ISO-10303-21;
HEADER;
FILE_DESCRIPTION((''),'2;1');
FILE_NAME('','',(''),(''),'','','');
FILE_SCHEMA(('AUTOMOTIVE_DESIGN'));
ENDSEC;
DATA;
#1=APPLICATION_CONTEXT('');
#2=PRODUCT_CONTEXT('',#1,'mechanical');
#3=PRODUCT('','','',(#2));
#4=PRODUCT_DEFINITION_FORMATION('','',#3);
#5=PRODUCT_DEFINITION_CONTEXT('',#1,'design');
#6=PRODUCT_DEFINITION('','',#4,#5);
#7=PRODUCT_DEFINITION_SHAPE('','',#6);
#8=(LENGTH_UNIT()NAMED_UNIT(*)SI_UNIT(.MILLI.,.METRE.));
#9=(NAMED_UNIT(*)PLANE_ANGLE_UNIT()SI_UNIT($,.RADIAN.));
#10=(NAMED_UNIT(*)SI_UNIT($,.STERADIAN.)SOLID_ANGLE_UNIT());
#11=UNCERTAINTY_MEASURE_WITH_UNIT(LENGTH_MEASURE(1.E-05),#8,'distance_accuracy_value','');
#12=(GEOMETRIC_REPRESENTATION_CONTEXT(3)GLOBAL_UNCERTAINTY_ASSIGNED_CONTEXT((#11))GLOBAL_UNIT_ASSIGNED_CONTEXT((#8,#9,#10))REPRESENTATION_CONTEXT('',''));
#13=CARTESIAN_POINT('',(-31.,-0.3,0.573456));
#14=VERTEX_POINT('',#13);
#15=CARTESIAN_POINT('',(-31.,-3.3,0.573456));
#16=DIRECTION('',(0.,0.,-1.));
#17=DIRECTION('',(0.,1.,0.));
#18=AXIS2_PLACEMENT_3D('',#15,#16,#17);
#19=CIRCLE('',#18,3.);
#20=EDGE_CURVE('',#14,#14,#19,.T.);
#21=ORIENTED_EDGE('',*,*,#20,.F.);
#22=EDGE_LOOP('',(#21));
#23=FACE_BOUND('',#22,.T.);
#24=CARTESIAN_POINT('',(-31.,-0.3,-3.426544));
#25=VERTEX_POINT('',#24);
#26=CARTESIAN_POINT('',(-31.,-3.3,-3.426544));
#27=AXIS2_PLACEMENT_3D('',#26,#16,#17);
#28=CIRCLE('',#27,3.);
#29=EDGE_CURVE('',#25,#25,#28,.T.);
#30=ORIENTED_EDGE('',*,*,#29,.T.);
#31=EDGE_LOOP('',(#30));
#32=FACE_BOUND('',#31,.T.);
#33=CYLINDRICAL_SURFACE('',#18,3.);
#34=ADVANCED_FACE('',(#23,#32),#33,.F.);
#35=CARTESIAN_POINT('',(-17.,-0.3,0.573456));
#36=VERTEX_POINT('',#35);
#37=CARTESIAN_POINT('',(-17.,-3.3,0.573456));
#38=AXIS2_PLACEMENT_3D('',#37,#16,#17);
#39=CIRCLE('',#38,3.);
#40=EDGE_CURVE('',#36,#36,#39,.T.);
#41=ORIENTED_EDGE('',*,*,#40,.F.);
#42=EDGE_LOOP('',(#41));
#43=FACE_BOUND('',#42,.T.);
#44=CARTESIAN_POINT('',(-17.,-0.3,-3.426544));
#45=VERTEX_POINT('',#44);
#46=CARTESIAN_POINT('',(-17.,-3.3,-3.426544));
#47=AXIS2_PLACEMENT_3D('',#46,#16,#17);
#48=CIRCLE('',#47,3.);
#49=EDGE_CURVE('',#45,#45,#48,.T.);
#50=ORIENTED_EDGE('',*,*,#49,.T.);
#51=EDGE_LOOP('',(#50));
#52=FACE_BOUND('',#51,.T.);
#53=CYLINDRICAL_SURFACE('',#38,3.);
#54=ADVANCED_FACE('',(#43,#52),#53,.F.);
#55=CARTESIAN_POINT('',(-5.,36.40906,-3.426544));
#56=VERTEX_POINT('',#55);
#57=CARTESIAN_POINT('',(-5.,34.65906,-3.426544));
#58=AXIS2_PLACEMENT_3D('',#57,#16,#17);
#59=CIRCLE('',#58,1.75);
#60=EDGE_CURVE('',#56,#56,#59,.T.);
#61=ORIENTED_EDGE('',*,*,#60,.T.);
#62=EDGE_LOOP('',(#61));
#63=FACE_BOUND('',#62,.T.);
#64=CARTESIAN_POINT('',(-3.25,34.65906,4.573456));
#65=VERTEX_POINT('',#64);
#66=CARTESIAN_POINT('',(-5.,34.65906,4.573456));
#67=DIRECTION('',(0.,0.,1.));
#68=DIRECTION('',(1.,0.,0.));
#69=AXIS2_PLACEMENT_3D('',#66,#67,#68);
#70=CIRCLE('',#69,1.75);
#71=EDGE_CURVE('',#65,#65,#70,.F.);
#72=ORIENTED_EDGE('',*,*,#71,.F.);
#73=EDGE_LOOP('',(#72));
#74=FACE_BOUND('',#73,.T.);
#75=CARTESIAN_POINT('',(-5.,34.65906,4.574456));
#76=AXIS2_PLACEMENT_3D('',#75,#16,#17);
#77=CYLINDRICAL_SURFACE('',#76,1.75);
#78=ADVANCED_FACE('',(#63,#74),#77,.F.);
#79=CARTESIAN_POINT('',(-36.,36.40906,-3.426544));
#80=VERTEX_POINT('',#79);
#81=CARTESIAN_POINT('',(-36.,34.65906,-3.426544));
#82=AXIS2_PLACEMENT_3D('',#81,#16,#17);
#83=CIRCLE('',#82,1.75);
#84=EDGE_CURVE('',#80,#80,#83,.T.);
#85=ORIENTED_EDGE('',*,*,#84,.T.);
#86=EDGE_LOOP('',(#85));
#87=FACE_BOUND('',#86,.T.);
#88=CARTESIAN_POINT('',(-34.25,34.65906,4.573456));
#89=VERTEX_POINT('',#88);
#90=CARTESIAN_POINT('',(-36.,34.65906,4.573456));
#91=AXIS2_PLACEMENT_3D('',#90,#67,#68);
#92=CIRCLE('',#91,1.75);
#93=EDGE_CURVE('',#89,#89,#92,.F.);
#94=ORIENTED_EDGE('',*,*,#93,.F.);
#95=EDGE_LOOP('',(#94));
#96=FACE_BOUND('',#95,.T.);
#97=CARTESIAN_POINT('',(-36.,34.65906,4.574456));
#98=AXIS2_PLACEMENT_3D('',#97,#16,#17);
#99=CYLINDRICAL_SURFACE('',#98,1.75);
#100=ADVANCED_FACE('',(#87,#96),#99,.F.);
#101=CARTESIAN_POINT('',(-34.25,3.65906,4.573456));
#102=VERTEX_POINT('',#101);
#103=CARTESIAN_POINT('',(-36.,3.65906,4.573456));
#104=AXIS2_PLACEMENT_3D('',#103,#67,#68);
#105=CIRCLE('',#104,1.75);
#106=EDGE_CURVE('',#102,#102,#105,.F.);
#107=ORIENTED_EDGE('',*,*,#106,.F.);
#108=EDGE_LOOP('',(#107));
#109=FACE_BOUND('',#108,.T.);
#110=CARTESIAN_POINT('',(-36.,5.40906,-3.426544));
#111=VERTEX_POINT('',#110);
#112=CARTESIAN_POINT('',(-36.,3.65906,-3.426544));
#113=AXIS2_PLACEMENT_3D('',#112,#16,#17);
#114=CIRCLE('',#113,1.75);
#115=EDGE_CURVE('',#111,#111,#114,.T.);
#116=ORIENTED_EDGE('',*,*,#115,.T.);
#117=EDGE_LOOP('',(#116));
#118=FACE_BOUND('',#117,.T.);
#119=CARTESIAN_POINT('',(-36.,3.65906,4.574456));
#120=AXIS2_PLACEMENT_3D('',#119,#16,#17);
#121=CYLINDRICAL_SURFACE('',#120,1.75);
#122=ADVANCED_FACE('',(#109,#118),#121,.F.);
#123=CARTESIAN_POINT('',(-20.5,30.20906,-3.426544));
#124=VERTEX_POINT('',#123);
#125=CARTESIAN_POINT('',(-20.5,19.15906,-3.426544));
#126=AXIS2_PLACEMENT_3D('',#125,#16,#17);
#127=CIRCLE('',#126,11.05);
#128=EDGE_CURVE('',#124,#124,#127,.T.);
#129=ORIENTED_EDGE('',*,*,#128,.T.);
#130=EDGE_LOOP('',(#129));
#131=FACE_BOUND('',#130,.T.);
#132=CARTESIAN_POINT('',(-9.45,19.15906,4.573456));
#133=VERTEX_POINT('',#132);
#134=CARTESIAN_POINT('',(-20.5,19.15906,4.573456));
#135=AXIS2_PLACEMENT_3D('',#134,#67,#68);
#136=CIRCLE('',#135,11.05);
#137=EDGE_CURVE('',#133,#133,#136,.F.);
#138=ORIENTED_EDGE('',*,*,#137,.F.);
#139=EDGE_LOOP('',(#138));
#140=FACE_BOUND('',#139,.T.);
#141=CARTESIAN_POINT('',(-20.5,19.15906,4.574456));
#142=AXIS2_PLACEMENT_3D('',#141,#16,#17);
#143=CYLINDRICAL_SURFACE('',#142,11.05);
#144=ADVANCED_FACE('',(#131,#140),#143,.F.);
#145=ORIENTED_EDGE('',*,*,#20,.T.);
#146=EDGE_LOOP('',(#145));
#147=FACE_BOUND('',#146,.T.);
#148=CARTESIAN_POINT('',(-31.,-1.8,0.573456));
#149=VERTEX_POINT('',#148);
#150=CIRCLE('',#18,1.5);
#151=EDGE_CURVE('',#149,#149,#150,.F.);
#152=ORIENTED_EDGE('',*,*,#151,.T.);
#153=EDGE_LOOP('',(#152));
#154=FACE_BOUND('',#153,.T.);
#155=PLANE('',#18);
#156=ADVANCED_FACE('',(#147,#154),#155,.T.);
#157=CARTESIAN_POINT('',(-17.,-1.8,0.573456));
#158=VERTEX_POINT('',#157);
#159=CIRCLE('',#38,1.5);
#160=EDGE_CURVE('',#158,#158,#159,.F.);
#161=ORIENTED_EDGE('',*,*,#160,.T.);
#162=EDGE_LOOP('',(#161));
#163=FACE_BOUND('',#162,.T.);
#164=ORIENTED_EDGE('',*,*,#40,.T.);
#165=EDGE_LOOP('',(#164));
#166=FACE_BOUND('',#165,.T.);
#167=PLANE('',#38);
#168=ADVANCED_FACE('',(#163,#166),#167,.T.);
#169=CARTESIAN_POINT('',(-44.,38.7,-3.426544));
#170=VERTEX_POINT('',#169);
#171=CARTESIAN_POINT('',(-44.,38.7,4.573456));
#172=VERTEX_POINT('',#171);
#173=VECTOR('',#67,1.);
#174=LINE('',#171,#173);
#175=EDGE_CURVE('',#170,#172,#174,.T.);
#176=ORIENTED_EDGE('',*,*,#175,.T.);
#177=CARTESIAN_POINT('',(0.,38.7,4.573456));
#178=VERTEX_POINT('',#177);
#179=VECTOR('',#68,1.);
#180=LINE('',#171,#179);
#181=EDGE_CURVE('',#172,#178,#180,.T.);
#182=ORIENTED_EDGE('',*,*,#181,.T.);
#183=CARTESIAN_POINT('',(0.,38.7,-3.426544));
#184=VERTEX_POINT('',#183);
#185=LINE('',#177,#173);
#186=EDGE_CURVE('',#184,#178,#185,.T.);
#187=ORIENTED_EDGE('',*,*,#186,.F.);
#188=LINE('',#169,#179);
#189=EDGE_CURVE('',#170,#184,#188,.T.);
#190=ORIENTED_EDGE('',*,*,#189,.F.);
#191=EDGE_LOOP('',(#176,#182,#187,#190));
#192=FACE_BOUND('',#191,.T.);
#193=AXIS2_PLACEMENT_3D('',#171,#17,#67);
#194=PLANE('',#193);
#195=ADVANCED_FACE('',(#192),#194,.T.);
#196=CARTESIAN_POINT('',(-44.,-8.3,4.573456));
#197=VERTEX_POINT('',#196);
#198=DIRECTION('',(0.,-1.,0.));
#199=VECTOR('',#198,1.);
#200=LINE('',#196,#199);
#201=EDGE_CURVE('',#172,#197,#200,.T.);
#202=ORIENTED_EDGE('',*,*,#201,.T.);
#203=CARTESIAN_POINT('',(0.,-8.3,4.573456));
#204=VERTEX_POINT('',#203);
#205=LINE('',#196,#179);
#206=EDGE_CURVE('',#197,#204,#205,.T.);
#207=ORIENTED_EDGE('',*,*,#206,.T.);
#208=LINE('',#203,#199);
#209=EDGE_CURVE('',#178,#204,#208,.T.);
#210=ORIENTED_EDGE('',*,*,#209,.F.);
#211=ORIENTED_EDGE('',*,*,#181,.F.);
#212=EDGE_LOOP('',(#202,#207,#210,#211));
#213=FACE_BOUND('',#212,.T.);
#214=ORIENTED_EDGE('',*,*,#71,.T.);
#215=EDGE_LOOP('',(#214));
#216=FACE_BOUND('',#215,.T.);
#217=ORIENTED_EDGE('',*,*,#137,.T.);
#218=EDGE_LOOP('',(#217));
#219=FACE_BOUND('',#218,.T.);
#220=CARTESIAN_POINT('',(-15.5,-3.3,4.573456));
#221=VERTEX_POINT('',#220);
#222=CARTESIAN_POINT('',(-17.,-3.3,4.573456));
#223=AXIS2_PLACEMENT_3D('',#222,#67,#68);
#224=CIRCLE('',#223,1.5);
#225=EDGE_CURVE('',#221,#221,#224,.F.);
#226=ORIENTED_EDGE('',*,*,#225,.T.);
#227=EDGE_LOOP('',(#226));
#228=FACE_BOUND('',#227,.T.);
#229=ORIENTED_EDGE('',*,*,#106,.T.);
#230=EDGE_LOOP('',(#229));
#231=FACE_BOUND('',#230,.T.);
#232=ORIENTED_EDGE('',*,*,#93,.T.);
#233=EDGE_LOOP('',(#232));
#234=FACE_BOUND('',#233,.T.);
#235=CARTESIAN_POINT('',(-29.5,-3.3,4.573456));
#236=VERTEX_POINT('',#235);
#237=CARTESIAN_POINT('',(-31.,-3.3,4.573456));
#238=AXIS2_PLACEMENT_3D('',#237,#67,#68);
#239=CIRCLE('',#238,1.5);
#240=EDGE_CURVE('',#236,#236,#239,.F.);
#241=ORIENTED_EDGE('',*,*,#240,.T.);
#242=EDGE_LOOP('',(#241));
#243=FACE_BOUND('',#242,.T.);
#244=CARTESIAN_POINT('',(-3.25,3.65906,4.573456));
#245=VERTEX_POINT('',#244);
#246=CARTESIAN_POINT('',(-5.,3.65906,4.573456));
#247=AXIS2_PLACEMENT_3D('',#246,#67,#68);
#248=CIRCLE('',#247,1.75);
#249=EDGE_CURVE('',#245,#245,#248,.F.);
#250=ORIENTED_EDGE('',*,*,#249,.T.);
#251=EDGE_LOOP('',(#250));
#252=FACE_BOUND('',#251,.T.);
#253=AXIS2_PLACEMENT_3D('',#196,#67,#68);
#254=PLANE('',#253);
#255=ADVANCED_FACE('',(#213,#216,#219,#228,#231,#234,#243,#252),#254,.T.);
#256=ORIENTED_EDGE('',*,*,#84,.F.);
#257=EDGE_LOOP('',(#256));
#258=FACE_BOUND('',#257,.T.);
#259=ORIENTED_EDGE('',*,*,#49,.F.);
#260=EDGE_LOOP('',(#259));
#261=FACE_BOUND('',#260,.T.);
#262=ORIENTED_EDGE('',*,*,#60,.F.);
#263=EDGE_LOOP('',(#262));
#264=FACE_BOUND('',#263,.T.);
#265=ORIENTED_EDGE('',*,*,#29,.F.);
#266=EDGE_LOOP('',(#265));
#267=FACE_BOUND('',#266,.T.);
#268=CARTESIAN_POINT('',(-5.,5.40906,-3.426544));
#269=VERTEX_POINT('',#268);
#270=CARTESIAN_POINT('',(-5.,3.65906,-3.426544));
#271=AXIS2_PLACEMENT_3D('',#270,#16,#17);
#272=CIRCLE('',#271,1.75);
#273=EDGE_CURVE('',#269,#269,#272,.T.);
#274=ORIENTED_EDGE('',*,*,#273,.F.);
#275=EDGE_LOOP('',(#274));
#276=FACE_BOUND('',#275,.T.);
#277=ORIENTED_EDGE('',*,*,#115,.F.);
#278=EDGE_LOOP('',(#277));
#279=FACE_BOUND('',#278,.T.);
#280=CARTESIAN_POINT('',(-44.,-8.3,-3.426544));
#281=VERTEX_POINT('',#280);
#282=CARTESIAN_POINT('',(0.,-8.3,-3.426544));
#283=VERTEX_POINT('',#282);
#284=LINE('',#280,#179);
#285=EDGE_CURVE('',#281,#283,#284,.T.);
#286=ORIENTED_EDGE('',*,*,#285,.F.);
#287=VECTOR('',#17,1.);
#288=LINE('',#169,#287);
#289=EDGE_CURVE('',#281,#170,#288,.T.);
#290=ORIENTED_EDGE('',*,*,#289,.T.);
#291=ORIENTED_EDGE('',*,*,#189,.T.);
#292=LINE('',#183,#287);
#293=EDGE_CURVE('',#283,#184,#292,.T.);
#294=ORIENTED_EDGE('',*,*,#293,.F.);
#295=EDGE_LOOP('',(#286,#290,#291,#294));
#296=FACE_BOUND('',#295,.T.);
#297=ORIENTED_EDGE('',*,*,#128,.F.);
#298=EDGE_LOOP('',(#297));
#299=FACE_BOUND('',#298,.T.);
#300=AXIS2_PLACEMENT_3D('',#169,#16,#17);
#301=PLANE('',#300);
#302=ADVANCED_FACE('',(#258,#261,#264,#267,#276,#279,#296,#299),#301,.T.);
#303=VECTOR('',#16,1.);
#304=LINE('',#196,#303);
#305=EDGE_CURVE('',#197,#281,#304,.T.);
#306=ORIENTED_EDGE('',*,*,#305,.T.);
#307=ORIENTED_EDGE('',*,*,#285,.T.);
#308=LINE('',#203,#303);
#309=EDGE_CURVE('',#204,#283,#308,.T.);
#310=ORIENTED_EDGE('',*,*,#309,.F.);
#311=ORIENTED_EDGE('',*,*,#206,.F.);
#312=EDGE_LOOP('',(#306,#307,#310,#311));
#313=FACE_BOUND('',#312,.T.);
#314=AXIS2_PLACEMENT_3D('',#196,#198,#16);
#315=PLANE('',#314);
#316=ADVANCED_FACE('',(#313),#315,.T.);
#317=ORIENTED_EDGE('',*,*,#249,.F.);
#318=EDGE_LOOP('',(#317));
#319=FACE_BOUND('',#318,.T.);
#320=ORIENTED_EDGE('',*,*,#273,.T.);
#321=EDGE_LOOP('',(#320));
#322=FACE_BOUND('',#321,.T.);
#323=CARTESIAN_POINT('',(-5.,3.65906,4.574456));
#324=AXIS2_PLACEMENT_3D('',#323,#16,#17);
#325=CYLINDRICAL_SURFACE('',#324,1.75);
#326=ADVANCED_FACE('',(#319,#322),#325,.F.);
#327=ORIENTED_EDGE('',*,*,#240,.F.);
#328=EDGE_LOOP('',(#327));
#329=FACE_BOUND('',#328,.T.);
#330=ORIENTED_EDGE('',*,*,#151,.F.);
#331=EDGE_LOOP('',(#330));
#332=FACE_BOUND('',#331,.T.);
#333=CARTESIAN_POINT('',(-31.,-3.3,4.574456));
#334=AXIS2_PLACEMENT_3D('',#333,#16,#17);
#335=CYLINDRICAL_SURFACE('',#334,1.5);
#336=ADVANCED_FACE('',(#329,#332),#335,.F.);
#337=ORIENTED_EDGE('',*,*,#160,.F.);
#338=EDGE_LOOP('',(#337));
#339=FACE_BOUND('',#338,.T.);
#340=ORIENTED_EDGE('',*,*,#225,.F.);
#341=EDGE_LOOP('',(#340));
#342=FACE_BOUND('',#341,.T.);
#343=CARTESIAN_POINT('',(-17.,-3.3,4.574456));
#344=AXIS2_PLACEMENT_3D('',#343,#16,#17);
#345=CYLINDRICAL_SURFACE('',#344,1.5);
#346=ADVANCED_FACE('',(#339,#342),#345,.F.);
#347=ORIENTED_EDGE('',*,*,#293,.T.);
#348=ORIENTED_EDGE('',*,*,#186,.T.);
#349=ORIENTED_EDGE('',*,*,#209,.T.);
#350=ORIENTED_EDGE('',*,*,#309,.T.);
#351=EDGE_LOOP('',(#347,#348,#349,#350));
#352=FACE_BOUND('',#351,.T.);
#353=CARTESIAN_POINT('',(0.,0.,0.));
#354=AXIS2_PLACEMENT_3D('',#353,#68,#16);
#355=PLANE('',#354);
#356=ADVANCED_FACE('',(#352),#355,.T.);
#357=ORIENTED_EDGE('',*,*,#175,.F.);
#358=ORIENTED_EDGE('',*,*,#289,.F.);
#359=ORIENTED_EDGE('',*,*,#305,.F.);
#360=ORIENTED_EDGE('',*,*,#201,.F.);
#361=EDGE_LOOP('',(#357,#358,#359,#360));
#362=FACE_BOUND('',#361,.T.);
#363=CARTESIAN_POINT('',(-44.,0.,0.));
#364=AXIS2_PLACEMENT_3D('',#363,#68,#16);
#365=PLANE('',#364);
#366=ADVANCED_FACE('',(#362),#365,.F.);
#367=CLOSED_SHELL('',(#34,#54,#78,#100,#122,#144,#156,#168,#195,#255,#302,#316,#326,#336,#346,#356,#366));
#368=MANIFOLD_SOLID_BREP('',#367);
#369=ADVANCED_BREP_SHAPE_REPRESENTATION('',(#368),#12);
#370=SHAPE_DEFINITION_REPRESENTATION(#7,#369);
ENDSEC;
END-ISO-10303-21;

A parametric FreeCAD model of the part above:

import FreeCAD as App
import Part
import Sketcher
from FreeCAD import Vector
Q = App.Units.Quantity

doc = App.newDocument("Part")
body = doc.addObject("PartDesign::Body", "Body")

# Sketch on YZ plane
sketch1 = body.newObject("Sketcher::SketchObject", "Sketch")
sketch1.AttachmentSupport = (doc.getObject("YZ_Plane"), [""])
sketch1.MapMode = "FlatFace"
sketch1.addGeometry(Part.LineSegment(Vector(39, 5, 0), Vector(-8, 5, 0)), False)
sketch1.addGeometry(Part.LineSegment(Vector(-8, 5, 0), Vector(-8, -3, 0)), False)
sketch1.addGeometry(Part.LineSegment(Vector(-8, -3, 0), Vector(39, -3, 0)), False)
sketch1.addGeometry(Part.LineSegment(Vector(39, -3, 0), Vector(39, 5, 0)), False)
sketch1.addConstraint(Sketcher.Constraint("Coincident", 0, 2, 1, 1))
sketch1.addConstraint(Sketcher.Constraint("Coincident", 1, 2, 2, 1))
sketch1.addConstraint(Sketcher.Constraint("Coincident", 2, 2, 3, 1))
sketch1.addConstraint(Sketcher.Constraint("Coincident", 3, 2, 0, 1))
sketch1.addConstraint(Sketcher.Constraint("Horizontal", 0))
sketch1.addConstraint(Sketcher.Constraint("Vertical", 1))
sketch1.addConstraint(Sketcher.Constraint("Horizontal", 2))
sketch1.addConstraint(Sketcher.Constraint("Vertical", 3))
sketch1.addConstraint(Sketcher.Constraint("DistanceX", 0, 2, 0, 1, Q("47 mm")))
sketch1.addConstraint(Sketcher.Constraint("DistanceY", 1, 2, 1, 1, Q("8 mm")))
sketch1.addConstraint(Sketcher.Constraint("DistanceX", 0, 2, -1, 1, Q("8.3 mm")))
sketch1.addConstraint(Sketcher.Constraint("DistanceY", -1, 1, 0, 2, Q("4.573456 mm")))
pad1 = body.newObject("PartDesign::Pad", "Pad")
pad1.Profile = sketch1
pad1.Length = 44
pad1.Reversed = True

# Sketch on XY plane
sketch2 = body.newObject("Sketcher::SketchObject", "Sketch001")
sketch2.AttachmentSupport = (doc.getObject("XY_Plane"), [""])
sketch2.MapMode = "FlatFace"
sketch2.AttachmentOffset = App.Placement(Vector(0, 0, -3.426544), App.Rotation())
sketch2.addGeometry(Part.Circle(Vector(-20, 19, 0), Vector(0, 0, 1), 11), False)
sketch2.addConstraint(Sketcher.Constraint("Diameter", 0, Q("22.1 mm")))
sketch2.addConstraint(Sketcher.Constraint("DistanceX", 0, 3, -1, 1, Q("20.5 mm")))
sketch2.addConstraint(Sketcher.Constraint("DistanceY", -1, 1, 0, 3, Q("19.15906 mm")))
pocket1 = body.newObject("PartDesign::Pocket", "Pocket")
pocket1.Profile = sketch2
pocket1.Type = "UpToFirst"
pocket1.Reversed = True

# Sketch on XY plane
sketch3 = body.newObject("Sketcher::SketchObject", "Sketch002")
sketch3.AttachmentSupport = (doc.getObject("XY_Plane"), [""])
sketch3.MapMode = "FlatFace"
sketch3.AttachmentOffset = App.Placement(Vector(0, 0, -3.426544), App.Rotation())
sketch3.addGeometry(Part.Circle(Vector(-5, 34.7, 0), Vector(0, 0, 1), 1.8), False)
sketch3.addConstraint(Sketcher.Constraint("Diameter", 0, Q("3.5 mm")))
sketch3.addConstraint(Sketcher.Constraint("DistanceX", 0, 3, -1, 1, Q("5 mm")))
sketch3.addConstraint(Sketcher.Constraint("DistanceY", -1, 1, 0, 3, Q("34.65906 mm")))
pocket2 = body.newObject("PartDesign::Pocket", "Pocket001")
pocket2.Profile = sketch3
pocket2.Type = "UpToFirst"
pocket2.Reversed = True

# Sketch on XY plane
sketch4 = body.newObject("Sketcher::SketchObject", "Sketch003")
sketch4.AttachmentSupport = (doc.getObject("XY_Plane"), [""])
sketch4.MapMode = "FlatFace"
sketch4.AttachmentOffset = App.Placement(Vector(0, 0, -3.426544), App.Rotation())
sketch4.addGeometry(Part.Circle(Vector(-5, 3.7, 0), Vector(0, 0, 1), 1.8), False)
sketch4.addConstraint(Sketcher.Constraint("Diameter", 0, Q("3.5 mm")))
sketch4.addConstraint(Sketcher.Constraint("DistanceX", 0, 3, -1, 1, Q("5 mm")))
sketch4.addConstraint(Sketcher.Constraint("DistanceY", -1, 1, 0, 3, Q("3.65906 mm")))
pocket3 = body.newObject("PartDesign::Pocket", "Pocket002")
pocket3.Profile = sketch4
pocket3.Type = "UpToFirst"
pocket3.Reversed = True

# Sketch on XY plane
sketch5 = body.newObject("Sketcher::SketchObject", "Sketch004")
sketch5.AttachmentSupport = (doc.getObject("XY_Plane"), [""])
sketch5.MapMode = "FlatFace"
sketch5.AttachmentOffset = App.Placement(Vector(0, 0, -3.426544), App.Rotation())
sketch5.addGeometry(Part.Circle(Vector(-36, 3.7, 0), Vector(0, 0, 1), 1.8), False)
sketch5.addConstraint(Sketcher.Constraint("Diameter", 0, Q("3.5 mm")))
sketch5.addConstraint(Sketcher.Constraint("DistanceX", 0, 3, -1, 1, Q("36 mm")))
sketch5.addConstraint(Sketcher.Constraint("DistanceY", -1, 1, 0, 3, Q("3.65906 mm")))
pocket4 = body.newObject("PartDesign::Pocket", "Pocket003")
pocket4.Profile = sketch5
pocket4.Type = "UpToFirst"
pocket4.Reversed = True

# Sketch on XY plane
sketch6 = body.newObject("Sketcher::SketchObject", "Sketch005")
sketch6.AttachmentSupport = (doc.getObject("XY_Plane"), [""])
sketch6.MapMode = "FlatFace"
sketch6.AttachmentOffset = App.Placement(Vector(0, 0, -3.426544), App.Rotation())
sketch6.addGeometry(Part.Circle(Vector(-36, 34.7, 0), Vector(0, 0, 1), 1.8), False)
sketch6.addConstraint(Sketcher.Constraint("Diameter", 0, Q("3.5 mm")))
sketch6.addConstraint(Sketcher.Constraint("DistanceX", 0, 3, -1, 1, Q("36 mm")))
sketch6.addConstraint(Sketcher.Constraint("DistanceY", -1, 1, 0, 3, Q("34.65906 mm")))
pocket5 = body.newObject("PartDesign::Pocket", "Pocket004")
pocket5.Profile = sketch6
pocket5.Type = "UpToFirst"
pocket5.Reversed = True

# Sketch on XY plane
sketch7 = body.newObject("Sketcher::SketchObject", "Sketch006")
sketch7.AttachmentSupport = (doc.getObject("XY_Plane"), [""])
sketch7.MapMode = "FlatFace"
sketch7.AttachmentOffset = App.Placement(Vector(0, 0, -3.426544), App.Rotation())
sketch7.addGeometry(Part.Circle(Vector(-17, -3.3, 0), Vector(0, 0, 1), 1.5), False)
sketch7.addConstraint(Sketcher.Constraint("Diameter", 0, Q("3 mm")))
sketch7.addConstraint(Sketcher.Constraint("DistanceX", 0, 3, -1, 1, Q("17 mm")))
sketch7.addConstraint(Sketcher.Constraint("DistanceY", 0, 3, -1, 1, Q("3.3 mm")))
pocket6 = body.newObject("PartDesign::Pocket", "Pocket005")
pocket6.Profile = sketch7
pocket6.Type = "UpToFirst"
pocket6.Reversed = True

# Sketch on XY plane
sketch8 = body.newObject("Sketcher::SketchObject", "Sketch007")
sketch8.AttachmentSupport = (doc.getObject("XY_Plane"), [""])
sketch8.MapMode = "FlatFace"
sketch8.AttachmentOffset = App.Placement(Vector(0, 0, -3.426544), App.Rotation())
sketch8.addGeometry(Part.Circle(Vector(-31, -3.3, 0), Vector(0, 0, 1), 1.5), False)
sketch8.addConstraint(Sketcher.Constraint("Diameter", 0, Q("3 mm")))
sketch8.addConstraint(Sketcher.Constraint("DistanceX", 0, 3, -1, 1, Q("31 mm")))
sketch8.addConstraint(Sketcher.Constraint("DistanceY", 0, 3, -1, 1, Q("3.3 mm")))
pocket7 = body.newObject("PartDesign::Pocket", "Pocket006")
pocket7.Profile = sketch8
pocket7.Type = "UpToFirst"
pocket7.Reversed = True

# Sketch on XY plane
sketch9 = body.newObject("Sketcher::SketchObject", "Sketch008")
sketch9.AttachmentSupport = (doc.getObject("XY_Plane"), [""])
sketch9.MapMode = "FlatFace"
sketch9.AttachmentOffset = App.Placement(Vector(0, 0, -3.426544), App.Rotation())
sketch9.addGeometry(Part.Circle(Vector(-17, -3.3, 0), Vector(0, 0, 1), 3), False)
sketch9.addGeometry(Part.Circle(Vector(-31, -3.3, 0), Vector(0, 0, 1), 3), False)
sketch9.addConstraint(Sketcher.Constraint("Equal", 0, 1))
sketch9.addConstraint(Sketcher.Constraint("Horizontal", 0, 3, 1, 3))
sketch9.addConstraint(Sketcher.Constraint("Diameter", 0, Q("6 mm")))
sketch9.addConstraint(Sketcher.Constraint("DistanceX", 0, 3, -1, 1, Q("17 mm")))
sketch9.addConstraint(Sketcher.Constraint("DistanceX", 1, 3, -1, 1, Q("31 mm")))
sketch9.addConstraint(Sketcher.Constraint("DistanceY", 0, 3, -1, 1, Q("3.3 mm")))
pocket8 = body.newObject("PartDesign::Pocket", "Pocket007")
pocket8.Profile = sketch9
pocket8.Length = 4
pocket8.Reversed = True

doc.recompute()
